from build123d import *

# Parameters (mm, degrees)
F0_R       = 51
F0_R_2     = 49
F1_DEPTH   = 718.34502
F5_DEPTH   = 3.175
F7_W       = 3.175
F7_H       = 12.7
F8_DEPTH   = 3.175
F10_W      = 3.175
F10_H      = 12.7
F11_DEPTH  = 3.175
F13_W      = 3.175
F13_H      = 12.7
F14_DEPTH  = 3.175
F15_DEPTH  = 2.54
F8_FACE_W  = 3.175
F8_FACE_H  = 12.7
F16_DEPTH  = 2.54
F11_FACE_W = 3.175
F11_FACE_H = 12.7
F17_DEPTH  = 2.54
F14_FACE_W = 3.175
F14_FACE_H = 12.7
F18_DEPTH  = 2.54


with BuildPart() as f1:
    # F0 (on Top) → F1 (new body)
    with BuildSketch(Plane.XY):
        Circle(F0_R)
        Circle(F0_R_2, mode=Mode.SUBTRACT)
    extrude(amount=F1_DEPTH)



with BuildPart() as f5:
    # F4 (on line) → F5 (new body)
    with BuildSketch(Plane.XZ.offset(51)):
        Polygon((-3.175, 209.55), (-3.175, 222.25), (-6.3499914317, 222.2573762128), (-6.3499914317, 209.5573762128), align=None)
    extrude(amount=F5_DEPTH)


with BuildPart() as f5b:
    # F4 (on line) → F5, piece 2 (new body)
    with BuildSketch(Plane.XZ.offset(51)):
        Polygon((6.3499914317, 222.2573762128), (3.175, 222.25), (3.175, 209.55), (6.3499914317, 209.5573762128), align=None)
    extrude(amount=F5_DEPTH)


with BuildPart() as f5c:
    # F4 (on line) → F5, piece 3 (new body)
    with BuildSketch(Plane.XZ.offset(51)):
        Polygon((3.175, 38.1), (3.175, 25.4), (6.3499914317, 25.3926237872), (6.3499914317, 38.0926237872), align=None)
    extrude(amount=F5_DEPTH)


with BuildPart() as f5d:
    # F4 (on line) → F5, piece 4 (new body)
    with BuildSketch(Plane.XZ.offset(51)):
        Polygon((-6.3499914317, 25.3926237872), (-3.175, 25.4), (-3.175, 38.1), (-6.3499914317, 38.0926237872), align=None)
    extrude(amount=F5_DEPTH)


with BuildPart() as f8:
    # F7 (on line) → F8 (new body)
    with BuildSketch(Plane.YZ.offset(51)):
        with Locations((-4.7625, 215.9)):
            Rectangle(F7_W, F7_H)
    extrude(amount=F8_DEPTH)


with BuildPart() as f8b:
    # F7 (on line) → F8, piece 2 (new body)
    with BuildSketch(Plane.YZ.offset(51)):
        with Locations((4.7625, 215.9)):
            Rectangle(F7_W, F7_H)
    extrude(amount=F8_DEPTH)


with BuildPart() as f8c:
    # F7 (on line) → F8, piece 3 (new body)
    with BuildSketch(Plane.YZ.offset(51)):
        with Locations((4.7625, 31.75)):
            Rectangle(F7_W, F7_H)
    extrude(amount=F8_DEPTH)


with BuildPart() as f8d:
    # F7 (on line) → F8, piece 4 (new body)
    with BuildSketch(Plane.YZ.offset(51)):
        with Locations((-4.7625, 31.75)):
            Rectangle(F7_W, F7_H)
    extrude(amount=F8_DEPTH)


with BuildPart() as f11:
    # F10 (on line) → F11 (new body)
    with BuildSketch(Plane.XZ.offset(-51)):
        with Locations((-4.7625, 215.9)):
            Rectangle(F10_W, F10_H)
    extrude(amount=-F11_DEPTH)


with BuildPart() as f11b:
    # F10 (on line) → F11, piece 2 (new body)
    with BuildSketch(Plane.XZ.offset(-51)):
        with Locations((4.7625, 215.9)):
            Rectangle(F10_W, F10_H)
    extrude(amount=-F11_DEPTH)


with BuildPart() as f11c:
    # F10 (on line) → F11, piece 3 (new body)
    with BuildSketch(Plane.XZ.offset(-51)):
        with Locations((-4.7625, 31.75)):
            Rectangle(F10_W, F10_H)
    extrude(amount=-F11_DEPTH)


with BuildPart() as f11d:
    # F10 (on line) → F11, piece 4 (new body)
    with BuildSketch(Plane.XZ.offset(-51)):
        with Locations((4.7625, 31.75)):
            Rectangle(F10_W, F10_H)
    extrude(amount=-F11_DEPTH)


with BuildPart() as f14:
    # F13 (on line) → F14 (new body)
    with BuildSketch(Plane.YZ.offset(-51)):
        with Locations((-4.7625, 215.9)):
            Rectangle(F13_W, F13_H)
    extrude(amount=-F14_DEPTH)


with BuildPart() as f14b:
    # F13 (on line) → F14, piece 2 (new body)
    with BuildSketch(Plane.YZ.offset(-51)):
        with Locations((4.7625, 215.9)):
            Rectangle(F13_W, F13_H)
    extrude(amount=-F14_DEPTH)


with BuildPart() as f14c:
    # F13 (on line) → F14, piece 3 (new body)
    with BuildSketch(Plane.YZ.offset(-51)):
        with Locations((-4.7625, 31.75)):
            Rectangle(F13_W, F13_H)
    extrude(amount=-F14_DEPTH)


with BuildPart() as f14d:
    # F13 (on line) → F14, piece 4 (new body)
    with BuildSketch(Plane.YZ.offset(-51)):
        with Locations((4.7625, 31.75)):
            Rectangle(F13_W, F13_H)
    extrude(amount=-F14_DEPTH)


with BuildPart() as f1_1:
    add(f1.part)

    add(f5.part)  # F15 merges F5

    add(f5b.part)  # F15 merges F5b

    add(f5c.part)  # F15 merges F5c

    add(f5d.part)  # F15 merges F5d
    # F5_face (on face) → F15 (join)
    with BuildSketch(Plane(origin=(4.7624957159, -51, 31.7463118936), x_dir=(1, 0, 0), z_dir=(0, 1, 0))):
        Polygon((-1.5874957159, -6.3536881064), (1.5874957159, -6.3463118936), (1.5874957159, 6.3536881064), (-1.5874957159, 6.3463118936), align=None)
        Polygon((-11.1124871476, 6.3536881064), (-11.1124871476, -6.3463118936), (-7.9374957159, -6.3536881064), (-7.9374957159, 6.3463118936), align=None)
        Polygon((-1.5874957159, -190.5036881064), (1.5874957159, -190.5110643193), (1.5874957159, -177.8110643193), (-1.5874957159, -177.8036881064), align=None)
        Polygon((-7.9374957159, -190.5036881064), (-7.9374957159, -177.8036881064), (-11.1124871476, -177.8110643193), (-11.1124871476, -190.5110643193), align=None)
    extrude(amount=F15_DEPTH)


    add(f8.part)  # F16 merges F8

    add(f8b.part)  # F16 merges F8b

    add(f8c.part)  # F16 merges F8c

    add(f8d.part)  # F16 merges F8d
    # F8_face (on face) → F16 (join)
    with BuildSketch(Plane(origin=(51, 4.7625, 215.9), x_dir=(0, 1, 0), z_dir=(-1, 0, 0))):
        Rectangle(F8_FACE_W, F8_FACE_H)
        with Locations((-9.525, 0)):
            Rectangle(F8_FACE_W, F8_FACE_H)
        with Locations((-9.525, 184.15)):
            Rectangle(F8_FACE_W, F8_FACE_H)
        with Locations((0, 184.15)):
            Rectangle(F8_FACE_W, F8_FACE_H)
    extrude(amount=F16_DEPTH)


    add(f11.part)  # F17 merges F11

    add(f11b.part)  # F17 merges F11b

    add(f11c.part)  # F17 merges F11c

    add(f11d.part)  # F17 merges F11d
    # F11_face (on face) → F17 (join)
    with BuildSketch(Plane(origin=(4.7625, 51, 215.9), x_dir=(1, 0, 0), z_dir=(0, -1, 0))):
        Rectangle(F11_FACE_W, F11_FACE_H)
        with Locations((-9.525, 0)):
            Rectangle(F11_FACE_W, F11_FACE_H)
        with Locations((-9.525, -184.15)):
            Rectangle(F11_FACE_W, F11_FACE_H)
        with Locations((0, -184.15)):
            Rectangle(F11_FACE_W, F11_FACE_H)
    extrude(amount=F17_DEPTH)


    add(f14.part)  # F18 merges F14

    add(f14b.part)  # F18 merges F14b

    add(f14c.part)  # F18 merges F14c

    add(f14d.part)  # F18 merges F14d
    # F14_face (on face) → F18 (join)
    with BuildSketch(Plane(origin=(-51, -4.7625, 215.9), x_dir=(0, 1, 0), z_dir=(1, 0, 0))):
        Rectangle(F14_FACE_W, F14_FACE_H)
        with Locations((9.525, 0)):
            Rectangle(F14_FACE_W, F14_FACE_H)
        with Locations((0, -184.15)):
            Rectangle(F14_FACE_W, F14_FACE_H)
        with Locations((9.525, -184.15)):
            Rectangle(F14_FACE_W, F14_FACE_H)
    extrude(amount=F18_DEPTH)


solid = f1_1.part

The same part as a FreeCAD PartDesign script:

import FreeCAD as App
import Part
import Sketcher

V = App.Vector
Q = App.Units.Quantity

doc = App.newDocument("Part")
params = doc.addObject("Spreadsheet::Sheet", "Params")
for row, (alias, value) in enumerate([
    ("pad1_length", "28.2813 in"),
    ("sketch2_height", "0.5 in"),
    ("sketch2_length", "0.125 in"),
    ("pad2_length", "0.125 in"),
    ("sketch3_height", "0.5 in"),
    ("sketch3_length", "0.125 in"),
    ("pad3_length", "0.125 in"),
    ("sketch4_height", "0.5 in"),
    ("sketch4_length", "0.125 in"),
    ("pad4_length", "0.125 in"),
    ("sketch5_height", "0.5 in"),
    ("sketch5_length", "0.125 in"),
    ("pad5_length", "0.125 in"),
    ("sketch6_height", "0.5 in"),
    ("sketch6_width", "0.125 in"),
    ("pad6_length", "0.125 in"),
    ("sketch7_height", "0.5 in"),
    ("sketch7_width", "0.125 in"),
    ("pad7_length", "0.125 in"),
    ("sketch8_height", "0.5 in"),
    ("sketch8_width", "0.125 in"),
    ("pad8_length", "0.125 in"),
    ("sketch9_height", "0.5 in"),
    ("sketch9_width", "0.125 in"),
    ("pad9_length", "0.125 in"),
    ("sketch10_height", "0.5 in"),
    ("sketch10_width", "0.125 in"),
    ("pad10_length", "0.125 in"),
    ("sketch11_height", "0.5 in"),
    ("sketch11_width", "0.125 in"),
    ("pad11_length", "0.125 in"),
    ("sketch12_height", "0.5 in"),
    ("sketch12_width", "0.125 in"),
    ("pad12_length", "0.125 in"),
    ("sketch13_height", "0.5 in"),
    ("sketch13_width", "0.125 in"),
    ("pad13_length", "0.125 in"),
    ("sketch14_height", "0.5 in"),
    ("sketch14_width", "0.125 in"),
    ("pad14_length", "0.125 in"),
    ("sketch15_height", "0.5 in"),
    ("sketch15_width", "0.125 in"),
    ("pad15_length", "0.125 in"),
    ("sketch16_height", "0.5 in"),
    ("sketch16_width", "0.125 in"),
    ("pad16_length", "0.125 in"),
    ("sketch17_height", "0.5 in"),
    ("sketch17_width", "0.125 in"),
    ("pad17_length", "0.125 in"),
    ("sketch18_height", "0.5 in"),
    ("sketch18_length", "0.125 in"),
    ("pad18_length", "0.1 in"),
    ("sketch19_height", "0.5 in"),
    ("sketch19_width", "0.125 in"),
    ("pad19_length", "0.1 in"),
    ("sketch20_height", "0.5 in"),
    ("sketch20_width", "0.125 in"),
    ("pad20_length", "0.1 in"),
    ("sketch21_height", "0.5 in"),
    ("sketch21_width", "0.125 in"),
    ("pad21_length", "0.1 in"),
], start=1):
    params.set(f"A{row}", alias)
    params.set(f"B{row}", "=" + value)
    params.setAlias(f"B{row}", alias)

body = doc.addObject("PartDesign::Body", "Body")

sketch1 = doc.addObject("Sketcher::SketchObject", "Sketch")
body.addObject(sketch1)
sketch1.AttachmentSupport = (doc.XY_Plane, [""])
sketch1.MapMode = "FlatFace"
sketch1.addGeometry([
    Part.Circle(V(0, 0, 0), V(0, 0, 1), 51),
    Part.Circle(V(0, 0, 0), V(0, 0, 1), 49),
], False)
sketch1.addConstraint([
    Sketcher.Constraint("Coincident", 0, 3, -1, 1),
    Sketcher.Constraint("Coincident", 1, 3, -1, 1),
    Sketcher.Constraint("Diameter", 0, 102.0),
    Sketcher.Constraint("Diameter", 1, 98.0),
])
pad1 = doc.addObject("PartDesign::Pad", "Pad")
body.addObject(pad1)
pad1.Profile = sketch1
pad1.setExpression("Length", "Params.pad1_length")
body2 = doc.addObject("PartDesign::Body", "Body001")

sketch2 = doc.addObject("Sketcher::SketchObject", "Sketch001")
body2.addObject(sketch2)
sketch2.AttachmentSupport = (doc.getObject("XZ_Plane001"), [""])
sketch2.MapMode = "FlatFace"
sketch2.AttachmentOffset = App.Placement(V(0, 0, 51), App.Rotation())
sketch2.addGeometry([
    Part.LineSegment(V(-3.175, 209.55, 0), V(-3.175, 222.25, 0)),
    Part.LineSegment(V(-3.175, 222.25, 0), V(-6.349991, 222.257376, 0)),
    Part.LineSegment(V(-6.349991, 222.257376, 0), V(-6.349991, 209.557376, 0)),
    Part.LineSegment(V(-6.349991, 209.557376, 0), V(-3.175, 209.55, 0)),
], False)
sketch2.addConstraint([
    Sketcher.Constraint("Coincident", 0, 2, 1, 1),
    Sketcher.Constraint("Coincident", 1, 2, 2, 1),
    Sketcher.Constraint("Coincident", 2, 2, 3, 1),
    Sketcher.Constraint("Coincident", 3, 2, 0, 1),
    Sketcher.Constraint("Vertical", 0),
    Sketcher.Constraint("Vertical", 2),
    Sketcher.Constraint("Parallel", 1, 3),
    Sketcher.Constraint("DistanceY", 0, 1, 0, 2, Q("0.5 in")),
    Sketcher.Constraint("DistanceY", -1, 1, 0, 2, Q("8.75 in")),
    Sketcher.Constraint("Distance", 1, Q("0.125 in")),
    Sketcher.Constraint("DistanceX", 0, 2, -1, 1, Q("0.125 in")),
    Sketcher.Constraint("DistanceY", -1, 1, 1, 2, 222.257376),
])
sketch2.setExpression("Constraints[7]", "Params.sketch2_height")
sketch2.setExpression("Constraints[9]", "Params.sketch2_length")
pad2 = doc.addObject("PartDesign::Pad", "Pad001")
body2.addObject(pad2)
pad2.Profile = sketch2
pad2.setExpression("Length", "Params.pad2_length")
body3 = doc.addObject("PartDesign::Body", "Body002")

sketch3 = doc.addObject("Sketcher::SketchObject", "Sketch002")
body3.addObject(sketch3)
sketch3.AttachmentSupport = (doc.getObject("XZ_Plane002"), [""])
sketch3.MapMode = "FlatFace"
sketch3.AttachmentOffset = App.Placement(V(0, 0, 51), App.Rotation())
sketch3.addGeometry([
    Part.LineSegment(V(6.349991, 222.257376, 0), V(3.175, 222.25, 0)),
    Part.LineSegment(V(3.175, 222.25, 0), V(3.175, 209.55, 0)),
    Part.LineSegment(V(3.175, 209.55, 0), V(6.349991, 209.557376, 0)),
    Part.LineSegment(V(6.349991, 209.557376, 0), V(6.349991, 222.257376, 0)),
], False)
sketch3.addConstraint([
    Sketcher.Constraint("Coincident", 0, 2, 1, 1),
    Sketcher.Constraint("Coincident", 1, 2, 2, 1),
    Sketcher.Constraint("Coincident", 2, 2, 3, 1),
    Sketcher.Constraint("Coincident", 3, 2, 0, 1),
    Sketcher.Constraint("Vertical", 1),
    Sketcher.Constraint("Vertical", 3),
    Sketcher.Constraint("Parallel", 0, 2),
    Sketcher.Constraint("DistanceY", 1, 2, 1, 1, Q("0.5 in")),
    Sketcher.Constraint("DistanceY", -1, 1, 0, 2, Q("8.75 in")),
    Sketcher.Constraint("Distance", 0, Q("0.125 in")),
    Sketcher.Constraint("DistanceX", -1, 1, 0, 2, Q("0.125 in")),
    Sketcher.Constraint("DistanceY", -1, 1, 2, 2, 209.557376),
])
sketch3.setExpression("Constraints[7]", "Params.sketch3_height")
sketch3.setExpression("Constraints[9]", "Params.sketch3_length")
pad3 = doc.addObject("PartDesign::Pad", "Pad002")
body3.addObject(pad3)
pad3.Profile = sketch3
pad3.setExpression("Length", "Params.pad3_length")
body4 = doc.addObject("PartDesign::Body", "Body003")

sketch4 = doc.addObject("Sketcher::SketchObject", "Sketch003")
body4.addObject(sketch4)
sketch4.AttachmentSupport = (doc.getObject("XZ_Plane003"), [""])
sketch4.MapMode = "FlatFace"
sketch4.AttachmentOffset = App.Placement(V(0, 0, 51), App.Rotation())
sketch4.addGeometry([
    Part.LineSegment(V(3.175, 38.1, 0), V(3.175, 25.4, 0)),
    Part.LineSegment(V(3.175, 25.4, 0), V(6.349991, 25.392624, 0)),
    Part.LineSegment(V(6.349991, 25.392624, 0), V(6.349991, 38.092624, 0)),
    Part.LineSegment(V(6.349991, 38.092624, 0), V(3.175, 38.1, 0)),
], False)
sketch4.addConstraint([
    Sketcher.Constraint("Coincident", 0, 2, 1, 1),
    Sketcher.Constraint("Coincident", 1, 2, 2, 1),
    Sketcher.Constraint("Coincident", 2, 2, 3, 1),
    Sketcher.Constraint("Coincident", 3, 2, 0, 1),
    Sketcher.Constraint("Vertical", 0),
    Sketcher.Constraint("Vertical", 2),
    Sketcher.Constraint("Parallel", 1, 3),
    Sketcher.Constraint("DistanceY", 0, 2, 0, 1, Q("0.5 in")),
    Sketcher.Constraint("DistanceY", -1, 1, 0, 2, Q("1 in")),
    Sketcher.Constraint("Distance", 1, Q("0.125 in")),
    Sketcher.Constraint("DistanceX", -1, 1, 0, 2, Q("0.125 in")),
    Sketcher.Constraint("DistanceY", -1, 1, 1, 2, 25.392624),
])
sketch4.setExpression("Constraints[7]", "Params.sketch4_height")
sketch4.setExpression("Constraints[9]", "Params.sketch4_length")
pad4 = doc.addObject("PartDesign::Pad", "Pad003")
body4.addObject(pad4)
pad4.Profile = sketch4
pad4.setExpression("Length", "Params.pad4_length")
body5 = doc.addObject("PartDesign::Body", "Body004")

sketch5 = doc.addObject("Sketcher::SketchObject", "Sketch004")
body5.addObject(sketch5)
sketch5.AttachmentSupport = (doc.getObject("XZ_Plane004"), [""])
sketch5.MapMode = "FlatFace"
sketch5.AttachmentOffset = App.Placement(V(0, 0, 51), App.Rotation())
sketch5.addGeometry([
    Part.LineSegment(V(-6.349991, 25.392624, 0), V(-3.175, 25.4, 0)),
    Part.LineSegment(V(-3.175, 25.4, 0), V(-3.175, 38.1, 0)),
    Part.LineSegment(V(-3.175, 38.1, 0), V(-6.349991, 38.092624, 0)),
    Part.LineSegment(V(-6.349991, 38.092624, 0), V(-6.349991, 25.392624, 0)),
], False)
sketch5.addConstraint([
    Sketcher.Constraint("Coincident", 0, 2, 1, 1),
    Sketcher.Constraint("Coincident", 1, 2, 2, 1),
    Sketcher.Constraint("Coincident", 2, 2, 3, 1),
    Sketcher.Constraint("Coincident", 3, 2, 0, 1),
    Sketcher.Constraint("Vertical", 1),
    Sketcher.Constraint("Vertical", 3),
    Sketcher.Constraint("Parallel", 0, 2),
    Sketcher.Constraint("DistanceY", 1, 1, 1, 2, Q("0.5 in")),
    Sketcher.Constraint("DistanceY", -1, 1, 0, 2, Q("1 in")),
    Sketcher.Constraint("Distance", 0, Q("0.125 in")),
    Sketcher.Constraint("DistanceX", 0, 2, -1, 1, Q("0.125 in")),
    Sketcher.Constraint("DistanceY", -1, 1, 2, 2, 38.092624),
])
sketch5.setExpression("Constraints[7]", "Params.sketch5_height")
sketch5.setExpression("Constraints[9]", "Params.sketch5_length")
pad5 = doc.addObject("PartDesign::Pad", "Pad004")
body5.addObject(pad5)
pad5.Profile = sketch5
pad5.setExpression("Length", "Params.pad5_length")
body6 = doc.addObject("PartDesign::Body", "Body005")

sketch6 = doc.addObject("Sketcher::SketchObject", "Sketch005")
body6.addObject(sketch6)
sketch6.AttachmentSupport = (doc.getObject("YZ_Plane005"), [""])
sketch6.MapMode = "FlatFace"
sketch6.AttachmentOffset = App.Placement(V(0, 0, 51), App.Rotation())
sketch6.addGeometry([
    Part.LineSegment(V(-6.35, 222.25, 0), V(-6.35, 209.55, 0)),
    Part.LineSegment(V(-6.35, 209.55, 0), V(-3.175, 209.55, 0)),
    Part.LineSegment(V(-3.175, 209.55, 0), V(-3.175, 222.25, 0)),
    Part.LineSegment(V(-3.175, 222.25, 0), V(-6.35, 222.25, 0)),
], False)
sketch6.addConstraint([
    Sketcher.Constraint("Coincident", 0, 2, 1, 1),
    Sketcher.Constraint("Coincident", 1, 2, 2, 1),
    Sketcher.Constraint("Coincident", 2, 2, 3, 1),
    Sketcher.Constraint("Coincident", 3, 2, 0, 1),
    Sketcher.Constraint("Vertical", 0),
    Sketcher.Constraint("Horizontal", 1),
    Sketcher.Constraint("Vertical", 2),
    Sketcher.Constraint("Horizontal", 3),
    Sketcher.Constraint("DistanceY", 0, 2, 0, 1, Q("0.5 in")),
    Sketcher.Constraint("DistanceX", 1, 1, 1, 2, Q("0.125 in")),
    Sketcher.Constraint("DistanceX", 0, 2, -1, 1, Q("0.25 in")),
    Sketcher.Constraint("DistanceY", -1, 1, 0, 2, Q("8.25 in")),
])
sketch6.setExpression("Constraints[8]", "Params.sketch6_height")
sketch6.setExpression("Constraints[9]", "Params.sketch6_width")
pad6 = doc.addObject("PartDesign::Pad", "Pad005")
body6.addObject(pad6)
pad6.Profile = sketch6
pad6.setExpression("Length", "Params.pad6_length")
body7 = doc.addObject("PartDesign::Body", "Body006")

sketch7 = doc.addObject("Sketcher::SketchObject", "Sketch006")
body7.addObject(sketch7)
sketch7.AttachmentSupport = (doc.getObject("YZ_Plane006"), [""])
sketch7.MapMode = "FlatFace"
sketch7.AttachmentOffset = App.Placement(V(0, 0, 51), App.Rotation())
sketch7.addGeometry([
    Part.LineSegment(V(3.175, 222.25, 0), V(3.175, 209.55, 0)),
    Part.LineSegment(V(3.175, 209.55, 0), V(6.35, 209.55, 0)),
    Part.LineSegment(V(6.35, 209.55, 0), V(6.35, 222.25, 0)),
    Part.LineSegment(V(6.35, 222.25, 0), V(3.175, 222.25, 0)),
], False)
sketch7.addConstraint([
    Sketcher.Constraint("Coincident", 0, 2, 1, 1),
    Sketcher.Constraint("Coincident", 1, 2, 2, 1),
    Sketcher.Constraint("Coincident", 2, 2, 3, 1),
    Sketcher.Constraint("Coincident", 3, 2, 0, 1),
    Sketcher.Constraint("Vertical", 0),
    Sketcher.Constraint("Horizontal", 1),
    Sketcher.Constraint("Vertical", 2),
    Sketcher.Constraint("Horizontal", 3),
    Sketcher.Constraint("DistanceY", 0, 2, 0, 1, Q("0.5 in")),
    Sketcher.Constraint("DistanceX", 1, 1, 1, 2, Q("0.125 in")),
    Sketcher.Constraint("DistanceY", -1, 1, 0, 2, Q("8.25 in")),
    Sketcher.Constraint("DistanceX", -1, 1, 1, 2, Q("0.25 in")),
])
sketch7.setExpression("Constraints[8]", "Params.sketch7_height")
sketch7.setExpression("Constraints[9]", "Params.sketch7_width")
pad7 = doc.addObject("PartDesign::Pad", "Pad006")
body7.addObject(pad7)
pad7.Profile = sketch7
pad7.setExpression("Length", "Params.pad7_length")
body8 = doc.addObject("PartDesign::Body", "Body007")

sketch8 = doc.addObject("Sketcher::SketchObject", "Sketch007")
body8.addObject(sketch8)
sketch8.AttachmentSupport = (doc.getObject("YZ_Plane007"), [""])
sketch8.MapMode = "FlatFace"
sketch8.AttachmentOffset = App.Placement(V(0, 0, 51), App.Rotation())
sketch8.addGeometry([
    Part.LineSegment(V(3.175, 38.1, 0), V(3.175, 25.4, 0)),
    Part.LineSegment(V(3.175, 25.4, 0), V(6.35, 25.4, 0)),
    Part.LineSegment(V(6.35, 25.4, 0), V(6.35, 38.1, 0)),
    Part.LineSegment(V(6.35, 38.1, 0), V(3.175, 38.1, 0)),
], False)
sketch8.addConstraint([
    Sketcher.Constraint("Coincident", 0, 2, 1, 1),
    Sketcher.Constraint("Coincident", 1, 2, 2, 1),
    Sketcher.Constraint("Coincident", 2, 2, 3, 1),
    Sketcher.Constraint("Coincident", 3, 2, 0, 1),
    Sketcher.Constraint("Vertical", 0),
    Sketcher.Constraint("Horizontal", 1),
    Sketcher.Constraint("Vertical", 2),
    Sketcher.Constraint("Horizontal", 3),
    Sketcher.Constraint("DistanceY", 0, 2, 0, 1, Q("0.5 in")),
    Sketcher.Constraint("DistanceY", -1, 1, 0, 2, Q("1 in")),
    Sketcher.Constraint("DistanceX", 1, 1, 1, 2, Q("0.125 in")),
    Sketcher.Constraint("DistanceX", -1, 1, 1, 2, Q("0.25 in")),
])
sketch8.setExpression("Constraints[8]", "Params.sketch8_height")
sketch8.setExpression("Constraints[10]", "Params.sketch8_width")
pad8 = doc.addObject("PartDesign::Pad", "Pad007")
body8.addObject(pad8)
pad8.Profile = sketch8
pad8.setExpression("Length", "Params.pad8_length")
body9 = doc.addObject("PartDesign::Body", "Body008")

sketch9 = doc.addObject("Sketcher::SketchObject", "Sketch008")
body9.addObject(sketch9)
sketch9.AttachmentSupport = (doc.getObject("YZ_Plane008"), [""])
sketch9.MapMode = "FlatFace"
sketch9.AttachmentOffset = App.Placement(V(0, 0, 51), App.Rotation())
sketch9.addGeometry([
    Part.LineSegment(V(-6.35, 38.1, 0), V(-6.35, 25.4, 0)),
    Part.LineSegment(V(-6.35, 25.4, 0), V(-3.175, 25.4, 0)),
    Part.LineSegment(V(-3.175, 25.4, 0), V(-3.175, 38.1, 0)),
    Part.LineSegment(V(-3.175, 38.1, 0), V(-6.35, 38.1, 0)),
], False)
sketch9.addConstraint([
    Sketcher.Constraint("Coincident", 0, 2, 1, 1),
    Sketcher.Constraint("Coincident", 1, 2, 2, 1),
    Sketcher.Constraint("Coincident", 2, 2, 3, 1),
    Sketcher.Constraint("Coincident", 3, 2, 0, 1),
    Sketcher.Constraint("Vertical", 0),
    Sketcher.Constraint("Horizontal", 1),
    Sketcher.Constraint("Vertical", 2),
    Sketcher.Constraint("Horizontal", 3),
    Sketcher.Constraint("DistanceY", 0, 2, 0, 1, Q("0.5 in")),
    Sketcher.Constraint("DistanceY", -1, 1, 0, 2, Q("1 in")),
    Sketcher.Constraint("DistanceX", 1, 1, 1, 2, Q("0.125 in")),
    Sketcher.Constraint("DistanceX", 0, 2, -1, 1, Q("0.25 in")),
])
sketch9.setExpression("Constraints[8]", "Params.sketch9_height")
sketch9.setExpression("Constraints[10]", "Params.sketch9_width")
pad9 = doc.addObject("PartDesign::Pad", "Pad008")
body9.addObject(pad9)
pad9.Profile = sketch9
pad9.setExpression("Length", "Params.pad9_length")
body10 = doc.addObject("PartDesign::Body", "Body009")

sketch10 = doc.addObject("Sketcher::SketchObject", "Sketch009")
body10.addObject(sketch10)
sketch10.AttachmentSupport = (doc.getObject("XZ_Plane009"), [""])
sketch10.MapMode = "FlatFace"
sketch10.AttachmentOffset = App.Placement(V(0, 0, -51), App.Rotation())
sketch10.addGeometry([
    Part.LineSegment(V(-6.35, 222.25, 0), V(-6.35, 209.55, 0)),
    Part.LineSegment(V(-6.35, 209.55, 0), V(-3.175, 209.55, 0)),
    Part.LineSegment(V(-3.175, 209.55, 0), V(-3.175, 222.25, 0)),
    Part.LineSegment(V(-3.175, 222.25, 0), V(-6.35, 222.25, 0)),
], False)
sketch10.addConstraint([
    Sketcher.Constraint("Coincident", 0, 2, 1, 1),
    Sketcher.Constraint("Coincident", 1, 2, 2, 1),
    Sketcher.Constraint("Coincident", 2, 2, 3, 1),
    Sketcher.Constraint("Coincident", 3, 2, 0, 1),
    Sketcher.Constraint("Vertical", 0),
    Sketcher.Constraint("Horizontal", 1),
    Sketcher.Constraint("Vertical", 2),
    Sketcher.Constraint("Horizontal", 3),
    Sketcher.Constraint("DistanceY", 0, 2, 0, 1, Q("0.5 in")),
    Sketcher.Constraint("DistanceX", 1, 1, 1, 2, Q("0.125 in")),
    Sketcher.Constraint("DistanceX", 0, 2, -1, 1, Q("0.25 in")),
    Sketcher.Constraint("DistanceY", -1, 1, 0, 2, Q("8.25 in")),
])
sketch10.setExpression("Constraints[8]", "Params.sketch10_height")
sketch10.setExpression("Constraints[9]", "Params.sketch10_width")
pad10 = doc.addObject("PartDesign::Pad", "Pad009")
body10.addObject(pad10)
pad10.Profile = sketch10
pad10.setExpression("Length", "Params.pad10_length")
pad10.Reversed = True
body11 = doc.addObject("PartDesign::Body", "Body010")

sketch11 = doc.addObject("Sketcher::SketchObject", "Sketch010")
body11.addObject(sketch11)
sketch11.AttachmentSupport = (doc.getObject("XZ_Plane010"), [""])
sketch11.MapMode = "FlatFace"
sketch11.AttachmentOffset = App.Placement(V(0, 0, -51), App.Rotation())
sketch11.addGeometry([
    Part.LineSegment(V(3.175, 222.25, 0), V(3.175, 209.55, 0)),
    Part.LineSegment(V(3.175, 209.55, 0), V(6.35, 209.55, 0)),
    Part.LineSegment(V(6.35, 209.55, 0), V(6.35, 222.25, 0)),
    Part.LineSegment(V(6.35, 222.25, 0), V(3.175, 222.25, 0)),
], False)
sketch11.addConstraint([
    Sketcher.Constraint("Coincident", 0, 2, 1, 1),
    Sketcher.Constraint("Coincident", 1, 2, 2, 1),
    Sketcher.Constraint("Coincident", 2, 2, 3, 1),
    Sketcher.Constraint("Coincident", 3, 2, 0, 1),
    Sketcher.Constraint("Vertical", 0),
    Sketcher.Constraint("Horizontal", 1),
    Sketcher.Constraint("Vertical", 2),
    Sketcher.Constraint("Horizontal", 3),
    Sketcher.Constraint("DistanceY", 0, 2, 0, 1, Q("0.5 in")),
    Sketcher.Constraint("DistanceX", 1, 1, 1, 2, Q("0.125 in")),
    Sketcher.Constraint("DistanceY", -1, 1, 0, 2, Q("8.25 in")),
    Sketcher.Constraint("DistanceX", -1, 1, 1, 2, Q("0.25 in")),
])
sketch11.setExpression("Constraints[8]", "Params.sketch11_height")
sketch11.setExpression("Constraints[9]", "Params.sketch11_width")
pad11 = doc.addObject("PartDesign::Pad", "Pad010")
body11.addObject(pad11)
pad11.Profile = sketch11
pad11.setExpression("Length", "Params.pad11_length")
pad11.Reversed = True
body12 = doc.addObject("PartDesign::Body", "Body011")

sketch12 = doc.addObject("Sketcher::SketchObject", "Sketch011")
body12.addObject(sketch12)
sketch12.AttachmentSupport = (doc.getObject("XZ_Plane011"), [""])
sketch12.MapMode = "FlatFace"
sketch12.AttachmentOffset = App.Placement(V(0, 0, -51), App.Rotation())
sketch12.addGeometry([
    Part.LineSegment(V(-6.35, 38.1, 0), V(-6.35, 25.4, 0)),
    Part.LineSegment(V(-6.35, 25.4, 0), V(-3.175, 25.4, 0)),
    Part.LineSegment(V(-3.175, 25.4, 0), V(-3.175, 38.1, 0)),
    Part.LineSegment(V(-3.175, 38.1, 0), V(-6.35, 38.1, 0)),
], False)
sketch12.addConstraint([
    Sketcher.Constraint("Coincident", 0, 2, 1, 1),
    Sketcher.Constraint("Coincident", 1, 2, 2, 1),
    Sketcher.Constraint("Coincident", 2, 2, 3, 1),
    Sketcher.Constraint("Coincident", 3, 2, 0, 1),
    Sketcher.Constraint("Vertical", 0),
    Sketcher.Constraint("Horizontal", 1),
    Sketcher.Constraint("Vertical", 2),
    Sketcher.Constraint("Horizontal", 3),
    Sketcher.Constraint("DistanceY", 0, 2, 0, 1, Q("0.5 in")),
    Sketcher.Constraint("DistanceY", -1, 1, 0, 2, Q("1 in")),
    Sketcher.Constraint("DistanceX", 1, 1, 1, 2, Q("0.125 in")),
    Sketcher.Constraint("DistanceX", 0, 2, -1, 1, Q("0.25 in")),
])
sketch12.setExpression("Constraints[8]", "Params.sketch12_height")
sketch12.setExpression("Constraints[10]", "Params.sketch12_width")
pad12 = doc.addObject("PartDesign::Pad", "Pad011")
body12.addObject(pad12)
pad12.Profile = sketch12
pad12.setExpression("Length", "Params.pad12_length")
pad12.Reversed = True
body13 = doc.addObject("PartDesign::Body", "Body012")

sketch13 = doc.addObject("Sketcher::SketchObject", "Sketch012")
body13.addObject(sketch13)
sketch13.AttachmentSupport = (doc.getObject("XZ_Plane012"), [""])
sketch13.MapMode = "FlatFace"
sketch13.AttachmentOffset = App.Placement(V(0, 0, -51), App.Rotation())
sketch13.addGeometry([
    Part.LineSegment(V(3.175, 38.1, 0), V(3.175, 25.4, 0)),
    Part.LineSegment(V(3.175, 25.4, 0), V(6.35, 25.4, 0)),
    Part.LineSegment(V(6.35, 25.4, 0), V(6.35, 38.1, 0)),
    Part.LineSegment(V(6.35, 38.1, 0), V(3.175, 38.1, 0)),
], False)
sketch13.addConstraint([
    Sketcher.Constraint("Coincident", 0, 2, 1, 1),
    Sketcher.Constraint("Coincident", 1, 2, 2, 1),
    Sketcher.Constraint("Coincident", 2, 2, 3, 1),
    Sketcher.Constraint("Coincident", 3, 2, 0, 1),
    Sketcher.Constraint("Vertical", 0),
    Sketcher.Constraint("Horizontal", 1),
    Sketcher.Constraint("Vertical", 2),
    Sketcher.Constraint("Horizontal", 3),
    Sketcher.Constraint("DistanceY", 0, 2, 0, 1, Q("0.5 in")),
    Sketcher.Constraint("DistanceY", -1, 1, 0, 2, Q("1 in")),
    Sketcher.Constraint("DistanceX", 1, 1, 1, 2, Q("0.125 in")),
    Sketcher.Constraint("DistanceX", -1, 1, 1, 2, Q("0.25 in")),
])
sketch13.setExpression("Constraints[8]", "Params.sketch13_height")
sketch13.setExpression("Constraints[10]", "Params.sketch13_width")
pad13 = doc.addObject("PartDesign::Pad", "Pad012")
body13.addObject(pad13)
pad13.Profile = sketch13
pad13.setExpression("Length", "Params.pad13_length")
pad13.Reversed = True
body14 = doc.addObject("PartDesign::Body", "Body013")

sketch14 = doc.addObject("Sketcher::SketchObject", "Sketch013")
body14.addObject(sketch14)
sketch14.AttachmentSupport = (doc.getObject("YZ_Plane013"), [""])
sketch14.MapMode = "FlatFace"
sketch14.AttachmentOffset = App.Placement(V(0, 0, -51), App.Rotation())
sketch14.addGeometry([
    Part.LineSegment(V(-6.35, 222.25, 0), V(-6.35, 209.55, 0)),
    Part.LineSegment(V(-6.35, 209.55, 0), V(-3.175, 209.55, 0)),
    Part.LineSegment(V(-3.175, 209.55, 0), V(-3.175, 222.25, 0)),
    Part.LineSegment(V(-3.175, 222.25, 0), V(-6.35, 222.25, 0)),
], False)
sketch14.addConstraint([
    Sketcher.Constraint("Coincident", 0, 2, 1, 1),
    Sketcher.Constraint("Coincident", 1, 2, 2, 1),
    Sketcher.Constraint("Coincident", 2, 2, 3, 1),
    Sketcher.Constraint("Coincident", 3, 2, 0, 1),
    Sketcher.Constraint("Vertical", 0),
    Sketcher.Constraint("Horizontal", 1),
    Sketcher.Constraint("Vertical", 2),
    Sketcher.Constraint("Horizontal", 3),
    Sketcher.Constraint("DistanceY", 0, 2, 0, 1, Q("0.5 in")),
    Sketcher.Constraint("DistanceX", 1, 1, 1, 2, Q("0.125 in")),
    Sketcher.Constraint("DistanceX", 0, 2, -1, 1, Q("0.25 in")),
    Sketcher.Constraint("DistanceY", -1, 1, 0, 2, Q("8.25 in")),
])
sketch14.setExpression("Constraints[8]", "Params.sketch14_height")
sketch14.setExpression("Constraints[9]", "Params.sketch14_width")
pad14 = doc.addObject("PartDesign::Pad", "Pad013")
body14.addObject(pad14)
pad14.Profile = sketch14
pad14.setExpression("Length", "Params.pad14_length")
pad14.Reversed = True
body15 = doc.addObject("PartDesign::Body", "Body014")

sketch15 = doc.addObject("Sketcher::SketchObject", "Sketch014")
body15.addObject(sketch15)
sketch15.AttachmentSupport = (doc.getObject("YZ_Plane014"), [""])
sketch15.MapMode = "FlatFace"
sketch15.AttachmentOffset = App.Placement(V(0, 0, -51), App.Rotation())
sketch15.addGeometry([
    Part.LineSegment(V(3.175, 222.25, 0), V(3.175, 209.55, 0)),
    Part.LineSegment(V(3.175, 209.55, 0), V(6.35, 209.55, 0)),
    Part.LineSegment(V(6.35, 209.55, 0), V(6.35, 222.25, 0)),
    Part.LineSegment(V(6.35, 222.25, 0), V(3.175, 222.25, 0)),
], False)
sketch15.addConstraint([
    Sketcher.Constraint("Coincident", 0, 2, 1, 1),
    Sketcher.Constraint("Coincident", 1, 2, 2, 1),
    Sketcher.Constraint("Coincident", 2, 2, 3, 1),
    Sketcher.Constraint("Coincident", 3, 2, 0, 1),
    Sketcher.Constraint("Vertical", 0),
    Sketcher.Constraint("Horizontal", 1),
    Sketcher.Constraint("Vertical", 2),
    Sketcher.Constraint("Horizontal", 3),
    Sketcher.Constraint("DistanceY", 0, 2, 0, 1, Q("0.5 in")),
    Sketcher.Constraint("DistanceX", 1, 1, 1, 2, Q("0.125 in")),
    Sketcher.Constraint("DistanceY", -1, 1, 0, 2, Q("8.25 in")),
    Sketcher.Constraint("DistanceX", -1, 1, 1, 2, Q("0.25 in")),
])
sketch15.setExpression("Constraints[8]", "Params.sketch15_height")
sketch15.setExpression("Constraints[9]", "Params.sketch15_width")
pad15 = doc.addObject("PartDesign::Pad", "Pad014")
body15.addObject(pad15)
pad15.Profile = sketch15
pad15.setExpression("Length", "Params.pad15_length")
pad15.Reversed = True
body16 = doc.addObject("PartDesign::Body", "Body015")

sketch16 = doc.addObject("Sketcher::SketchObject", "Sketch015")
body16.addObject(sketch16)
sketch16.AttachmentSupport = (doc.getObject("YZ_Plane015"), [""])
sketch16.MapMode = "FlatFace"
sketch16.AttachmentOffset = App.Placement(V(0, 0, -51), App.Rotation())
sketch16.addGeometry([
    Part.LineSegment(V(-6.35, 38.1, 0), V(-6.35, 25.4, 0)),
    Part.LineSegment(V(-6.35, 25.4, 0), V(-3.175, 25.4, 0)),
    Part.LineSegment(V(-3.175, 25.4, 0), V(-3.175, 38.1, 0)),
    Part.LineSegment(V(-3.175, 38.1, 0), V(-6.35, 38.1, 0)),
], False)
sketch16.addConstraint([
    Sketcher.Constraint("Coincident", 0, 2, 1, 1),
    Sketcher.Constraint("Coincident", 1, 2, 2, 1),
    Sketcher.Constraint("Coincident", 2, 2, 3, 1),
    Sketcher.Constraint("Coincident", 3, 2, 0, 1),
    Sketcher.Constraint("Vertical", 0),
    Sketcher.Constraint("Horizontal", 1),
    Sketcher.Constraint("Vertical", 2),
    Sketcher.Constraint("Horizontal", 3),
    Sketcher.Constraint("DistanceY", 0, 2, 0, 1, Q("0.5 in")),
    Sketcher.Constraint("DistanceY", -1, 1, 0, 2, Q("1 in")),
    Sketcher.Constraint("DistanceX", 1, 1, 1, 2, Q("0.125 in")),
    Sketcher.Constraint("DistanceX", 0, 2, -1, 1, Q("0.25 in")),
])
sketch16.setExpression("Constraints[8]", "Params.sketch16_height")
sketch16.setExpression("Constraints[10]", "Params.sketch16_width")
pad16 = doc.addObject("PartDesign::Pad", "Pad015")
body16.addObject(pad16)
pad16.Profile = sketch16
pad16.setExpression("Length", "Params.pad16_length")
pad16.Reversed = True
body17 = doc.addObject("PartDesign::Body", "Body016")

sketch17 = doc.addObject("Sketcher::SketchObject", "Sketch016")
body17.addObject(sketch17)
sketch17.AttachmentSupport = (doc.getObject("YZ_Plane016"), [""])
sketch17.MapMode = "FlatFace"
sketch17.AttachmentOffset = App.Placement(V(0, 0, -51), App.Rotation())
sketch17.addGeometry([
    Part.LineSegment(V(3.175, 38.1, 0), V(3.175, 25.4, 0)),
    Part.LineSegment(V(3.175, 25.4, 0), V(6.35, 25.4, 0)),
    Part.LineSegment(V(6.35, 25.4, 0), V(6.35, 38.1, 0)),
    Part.LineSegment(V(6.35, 38.1, 0), V(3.175, 38.1, 0)),
], False)
sketch17.addConstraint([
    Sketcher.Constraint("Coincident", 0, 2, 1, 1),
    Sketcher.Constraint("Coincident", 1, 2, 2, 1),
    Sketcher.Constraint("Coincident", 2, 2, 3, 1),
    Sketcher.Constraint("Coincident", 3, 2, 0, 1),
    Sketcher.Constraint("Vertical", 0),
    Sketcher.Constraint("Horizontal", 1),
    Sketcher.Constraint("Vertical", 2),
    Sketcher.Constraint("Horizontal", 3),
    Sketcher.Constraint("DistanceY", 0, 2, 0, 1, Q("0.5 in")),
    Sketcher.Constraint("DistanceY", -1, 1, 0, 2, Q("1 in")),
    Sketcher.Constraint("DistanceX", 1, 1, 1, 2, Q("0.125 in")),
    Sketcher.Constraint("DistanceX", -1, 1, 1, 2, Q("0.25 in")),
])
sketch17.setExpression("Constraints[8]", "Params.sketch17_height")
sketch17.setExpression("Constraints[10]", "Params.sketch17_width")
pad17 = doc.addObject("PartDesign::Pad", "Pad016")
body17.addObject(pad17)
pad17.Profile = sketch17
pad17.setExpression("Length", "Params.pad17_length")
pad17.Reversed = True
body.AllowCompound = True
doc.recompute()

boolean = doc.addObject("PartDesign::Boolean", "Boolean")
body.addObject(boolean)
boolean.Type = "Fuse"
boolean.addObjects([body2])
doc.recompute()

boolean2 = doc.addObject("PartDesign::Boolean", "Boolean001")
body.addObject(boolean2)
boolean2.Type = "Fuse"
boolean2.addObjects([body3])
doc.recompute()

boolean3 = doc.addObject("PartDesign::Boolean", "Boolean002")
body.addObject(boolean3)
boolean3.Type = "Fuse"
boolean3.addObjects([body4])
doc.recompute()

boolean4 = doc.addObject("PartDesign::Boolean", "Boolean003")
body.addObject(boolean4)
boolean4.Type = "Fuse"
boolean4.addObjects([body5])

sketch18 = doc.addObject("Sketcher::SketchObject", "Sketch017")
body.addObject(sketch18)
sketch18.AttachmentSupport = (doc.XZ_Plane, [""])
sketch18.MapMode = "FlatFace"
sketch18.AttachmentOffset = App.Placement(V(0, 0, 51), App.Rotation())
sketch18.addGeometry([
    Part.LineSegment(V(3.175, 38.1, 0), V(6.349991, 38.092624, 0)),
    Part.LineSegment(V(6.349991, 38.092624, 0), V(6.349991, 25.392624, 0)),
    Part.LineSegment(V(6.349991, 25.392624, 0), V(3.175, 25.4, 0)),
    Part.LineSegment(V(3.175, 25.4, 0), V(3.175, 38.1, 0)),
    Part.LineSegment(V(-6.349991, 25.392624, 0), V(-6.349991, 38.092624, 0)),
    Part.LineSegment(V(-6.349991, 38.092624, 0), V(-3.175, 38.1, 0)),
    Part.LineSegment(V(-3.175, 38.1, 0), V(-3.175, 25.4, 0)),
    Part.LineSegment(V(-3.175, 25.4, 0), V(-6.349991, 25.392624, 0)),
    Part.LineSegment(V(3.175, 222.25, 0), V(6.349991, 222.257376, 0)),
    Part.LineSegment(V(6.349991, 222.257376, 0), V(6.349991, 209.557376, 0)),
    Part.LineSegment(V(6.349991, 209.557376, 0), V(3.175, 209.55, 0)),
    Part.LineSegment(V(3.175, 209.55, 0), V(3.175, 222.25, 0)),
    Part.LineSegment(V(-3.175, 222.25, 0), V(-3.175, 209.55, 0)),
    Part.LineSegment(V(-3.175, 209.55, 0), V(-6.349991, 209.557376, 0)),
    Part.LineSegment(V(-6.349991, 209.557376, 0), V(-6.349991, 222.257376, 0)),
    Part.LineSegment(V(-6.349991, 222.257376, 0), V(-3.175, 222.25, 0)),
], False)
sketch18.addConstraint([
    Sketcher.Constraint("Coincident", 0, 2, 1, 1),
    Sketcher.Constraint("Coincident", 1, 2, 2, 1),
    Sketcher.Constraint("Coincident", 2, 2, 3, 1),
    Sketcher.Constraint("Coincident", 3, 2, 0, 1),
    Sketcher.Constraint("Coincident", 4, 2, 5, 1),
    Sketcher.Constraint("Coincident", 5, 2, 6, 1),
    Sketcher.Constraint("Coincident", 6, 2, 7, 1),
    Sketcher.Constraint("Coincident", 7, 2, 4, 1),
    Sketcher.Constraint("Coincident", 8, 2, 9, 1),
    Sketcher.Constraint("Coincident", 9, 2, 10, 1),
    Sketcher.Constraint("Coincident", 10, 2, 11, 1),
    Sketcher.Constraint("Coincident", 11, 2, 8, 1),
    Sketcher.Constraint("Coincident", 12, 2, 13, 1),
    Sketcher.Constraint("Coincident", 13, 2, 14, 1),
    Sketcher.Constraint("Coincident", 14, 2, 15, 1),
    Sketcher.Constraint("Coincident", 15, 2, 12, 1),
    Sketcher.Constraint("Vertical", 1),
    Sketcher.Constraint("Vertical", 3),
    Sketcher.Constraint("Vertical", 4),
    Sketcher.Constraint("Vertical", 6),
    Sketcher.Constraint("Vertical", 9),
    Sketcher.Constraint("Vertical", 11),
    Sketcher.Constraint("Vertical", 12),
    Sketcher.Constraint("Vertical", 14),
    Sketcher.Constraint("Symmetric", 0, 2, 4, 2, -2),
    Sketcher.Constraint("Symmetric", 3, 2, 5, 2, -2),
    Sketcher.Constraint("Symmetric", 10, 2, 12, 2, -2),
    Sketcher.Constraint("Symmetric", 9, 2, 13, 2, -2),
    Sketcher.Constraint("Parallel", 0, 2),
    Sketcher.Constraint("Parallel", 5, 7),
    Sketcher.Constraint("Parallel", 7, 8),
    Sketcher.Constraint("Parallel", 8, 10),
    Sketcher.Constraint("Parallel", 13, 15),
    Sketcher.Constraint("Horizontal", 2, 2, 6, 2),
    Sketcher.Constraint("Horizontal", 8, 2, 14, 2),
    Sketcher.Constraint("Vertical", 1, 2, 8, 2),
    Sketcher.Constraint("Vertical", 3, 2, 10, 2),
    Sketcher.Constraint("Equal", 6, 9),
    Sketcher.Constraint("DistanceY", 1, 2, 1, 1, Q("0.5 in")),
    Sketcher.Constraint("DistanceY", -1, 1, 2, 2, Q("1 in")),
    Sketcher.Constraint("DistanceY", -1, 1, 10, 2, Q("8.25 in")),
    Sketcher.Constraint("DistanceX", 5, 2, 3, 2, Q("0.25 in")),
    Sketcher.Constraint("Distance", 0, Q("0.125 in")),
    Sketcher.Constraint("DistanceY", -1, 1, 0, 2, 38.092624),
])
sketch18.setExpression("Constraints[38]", "Params.sketch18_height")
sketch18.setExpression("Constraints[42]", "Params.sketch18_length")
pad18 = doc.addObject("PartDesign::Pad", "Pad017")
body.addObject(pad18)
pad18.Profile = sketch18
pad18.setExpression("Length", "Params.pad18_length")
pad18.Reversed = True
doc.recompute()

boolean5 = doc.addObject("PartDesign::Boolean", "Boolean004")
body.addObject(boolean5)
boolean5.Type = "Fuse"
boolean5.addObjects([body6])
doc.recompute()

boolean6 = doc.addObject("PartDesign::Boolean", "Boolean005")
body.addObject(boolean6)
boolean6.Type = "Fuse"
boolean6.addObjects([body7])
doc.recompute()

boolean7 = doc.addObject("PartDesign::Boolean", "Boolean006")
body.addObject(boolean7)
boolean7.Type = "Fuse"
boolean7.addObjects([body8])
doc.recompute()

boolean8 = doc.addObject("PartDesign::Boolean", "Boolean007")
body.addObject(boolean8)
boolean8.Type = "Fuse"
boolean8.addObjects([body9])

sketch19 = doc.addObject("Sketcher::SketchObject", "Sketch018")
body.addObject(sketch19)
sketch19.AttachmentSupport = (doc.YZ_Plane, [""])
sketch19.MapMode = "FlatFace"
sketch19.AttachmentOffset = App.Placement(V(0, 0, 51), App.Rotation())
sketch19.addGeometry([
    Part.LineSegment(V(3.175, 209.55, 0), V(3.175, 222.25, 0)),
    Part.LineSegment(V(3.175, 222.25, 0), V(6.35, 222.25, 0)),
    Part.LineSegment(V(6.35, 222.25, 0), V(6.35, 209.55, 0)),
    Part.LineSegment(V(6.35, 209.55, 0), V(3.175, 209.55, 0)),
    Part.LineSegment(V(-6.35, 209.55, 0), V(-6.35, 222.25, 0)),
    Part.LineSegment(V(-6.35, 222.25, 0), V(-3.175, 222.25, 0)),
    Part.LineSegment(V(-3.175, 222.25, 0), V(-3.175, 209.55, 0)),
    Part.LineSegment(V(-3.175, 209.55, 0), V(-6.35, 209.55, 0)),
    Part.LineSegment(V(-6.35, 25.4, 0), V(-6.35, 38.1, 0)),
    Part.LineSegment(V(-6.35, 38.1, 0), V(-3.175, 38.1, 0)),
    Part.LineSegment(V(-3.175, 38.1, 0), V(-3.175, 25.4, 0)),
    Part.LineSegment(V(-3.175, 25.4, 0), V(-6.35, 25.4, 0)),
    Part.LineSegment(V(3.175, 25.4, 0), V(3.175, 38.1, 0)),
    Part.LineSegment(V(3.175, 38.1, 0), V(6.35, 38.1, 0)),
    Part.LineSegment(V(6.35, 38.1, 0), V(6.35, 25.4, 0)),
    Part.LineSegment(V(6.35, 25.4, 0), V(3.175, 25.4, 0)),
], False)
sketch19.addConstraint([
    Sketcher.Constraint("Coincident", 0, 2, 1, 1),
    Sketcher.Constraint("Coincident", 1, 2, 2, 1),
    Sketcher.Constraint("Coincident", 2, 2, 3, 1),
    Sketcher.Constraint("Coincident", 3, 2, 0, 1),
    Sketcher.Constraint("Coincident", 4, 2, 5, 1),
    Sketcher.Constraint("Coincident", 5, 2, 6, 1),
    Sketcher.Constraint("Coincident", 6, 2, 7, 1),
    Sketcher.Constraint("Coincident", 7, 2, 4, 1),
    Sketcher.Constraint("Coincident", 8, 2, 9, 1),
    Sketcher.Constraint("Coincident", 9, 2, 10, 1),
    Sketcher.Constraint("Coincident", 10, 2, 11, 1),
    Sketcher.Constraint("Coincident", 11, 2, 8, 1),
    Sketcher.Constraint("Coincident", 12, 2, 13, 1),
    Sketcher.Constraint("Coincident", 13, 2, 14, 1),
    Sketcher.Constraint("Coincident", 14, 2, 15, 1),
    Sketcher.Constraint("Coincident", 15, 2, 12, 1),
    Sketcher.Constraint("Vertical", 0),
    Sketcher.Constraint("Horizontal", 1),
    Sketcher.Constraint("Vertical", 2),
    Sketcher.Constraint("Horizontal", 3),
    Sketcher.Constraint("Vertical", 4),
    Sketcher.Constraint("Horizontal", 5),
    Sketcher.Constraint("Vertical", 6),
    Sketcher.Constraint("Horizontal", 7),
    Sketcher.Constraint("Vertical", 8),
    Sketcher.Constraint("Horizontal", 9),
    Sketcher.Constraint("Vertical", 10),
    Sketcher.Constraint("Horizontal", 11),
    Sketcher.Constraint("Vertical", 12),
    Sketcher.Constraint("Horizontal", 13),
    Sketcher.Constraint("Vertical", 14),
    Sketcher.Constraint("Horizontal", 15),
    Sketcher.Constraint("Symmetric", 1, 2, 4, 2, -2),
    Sketcher.Constraint("Symmetric", 3, 2, 6, 2, -2),
    Sketcher.Constraint("Symmetric", 9, 2, 12, 2, -2),
    Sketcher.Constraint("Symmetric", 11, 2, 14, 2, -2),
    Sketcher.Constraint("Vertical", 7, 2, 8, 2),
    Sketcher.Constraint("Vertical", 6, 2, 9, 2),
    Sketcher.Constraint("Equal", 6, 8),
    Sketcher.Constraint("DistanceY", 0, 1, 0, 2, Q("0.5 in")),
    Sketcher.Constraint("DistanceY", -1, 1, 10, 2, Q("1 in")),
    Sketcher.Constraint("DistanceX", 4, 2, 1, 2, Q("0.5 in")),
    Sketcher.Constraint("DistanceX", 1, 1, 1, 2, Q("0.125 in")),
    Sketcher.Constraint("DistanceY", -1, 1, 0, 2, Q("8.75 in")),
])
sketch19.setExpression("Constraints[39]", "Params.sketch19_height")
sketch19.setExpression("Constraints[42]", "Params.sketch19_width")
pad19 = doc.addObject("PartDesign::Pad", "Pad018")
body.addObject(pad19)
pad19.Profile = sketch19
pad19.setExpression("Length", "Params.pad19_length")
pad19.Reversed = True
doc.recompute()

boolean9 = doc.addObject("PartDesign::Boolean", "Boolean008")
body.addObject(boolean9)
boolean9.Type = "Fuse"
boolean9.addObjects([body10])
doc.recompute()

boolean10 = doc.addObject("PartDesign::Boolean", "Boolean009")
body.addObject(boolean10)
boolean10.Type = "Fuse"
boolean10.addObjects([body11])
doc.recompute()

boolean11 = doc.addObject("PartDesign::Boolean", "Boolean010")
body.addObject(boolean11)
boolean11.Type = "Fuse"
boolean11.addObjects([body12])
doc.recompute()

boolean12 = doc.addObject("PartDesign::Boolean", "Boolean011")
body.addObject(boolean12)
boolean12.Type = "Fuse"
boolean12.addObjects([body13])

sketch20 = doc.addObject("Sketcher::SketchObject", "Sketch019")
body.addObject(sketch20)
sketch20.AttachmentSupport = (doc.XZ_Plane, [""])
sketch20.MapMode = "FlatFace"
sketch20.AttachmentOffset = App.Placement(V(0, 0, -51), App.Rotation())
sketch20.addGeometry([
    Part.LineSegment(V(3.175, 222.25, 0), V(3.175, 209.55, 0)),
    Part.LineSegment(V(3.175, 209.55, 0), V(6.35, 209.55, 0)),
    Part.LineSegment(V(6.35, 209.55, 0), V(6.35, 222.25, 0)),
    Part.LineSegment(V(6.35, 222.25, 0), V(3.175, 222.25, 0)),
    Part.LineSegment(V(-6.35, 222.25, 0), V(-6.35, 209.55, 0)),
    Part.LineSegment(V(-6.35, 209.55, 0), V(-3.175, 209.55, 0)),
    Part.LineSegment(V(-3.175, 209.55, 0), V(-3.175, 222.25, 0)),
    Part.LineSegment(V(-3.175, 222.25, 0), V(-6.35, 222.25, 0)),
    Part.LineSegment(V(-6.35, 38.1, 0), V(-6.35, 25.4, 0)),
    Part.LineSegment(V(-6.35, 25.4, 0), V(-3.175, 25.4, 0)),
    Part.LineSegment(V(-3.175, 25.4, 0), V(-3.175, 38.1, 0)),
    Part.LineSegment(V(-3.175, 38.1, 0), V(-6.35, 38.1, 0)),
    Part.LineSegment(V(3.175, 38.1, 0), V(3.175, 25.4, 0)),
    Part.LineSegment(V(3.175, 25.4, 0), V(6.35, 25.4, 0)),
    Part.LineSegment(V(6.35, 25.4, 0), V(6.35, 38.1, 0)),
    Part.LineSegment(V(6.35, 38.1, 0), V(3.175, 38.1, 0)),
], False)
sketch20.addConstraint([
    Sketcher.Constraint("Coincident", 0, 2, 1, 1),
    Sketcher.Constraint("Coincident", 1, 2, 2, 1),
    Sketcher.Constraint("Coincident", 2, 2, 3, 1),
    Sketcher.Constraint("Coincident", 3, 2, 0, 1),
    Sketcher.Constraint("Coincident", 4, 2, 5, 1),
    Sketcher.Constraint("Coincident", 5, 2, 6, 1),
    Sketcher.Constraint("Coincident", 6, 2, 7, 1),
    Sketcher.Constraint("Coincident", 7, 2, 4, 1),
    Sketcher.Constraint("Coincident", 8, 2, 9, 1),
    Sketcher.Constraint("Coincident", 9, 2, 10, 1),
    Sketcher.Constraint("Coincident", 10, 2, 11, 1),
    Sketcher.Constraint("Coincident", 11, 2, 8, 1),
    Sketcher.Constraint("Coincident", 12, 2, 13, 1),
    Sketcher.Constraint("Coincident", 13, 2, 14, 1),
    Sketcher.Constraint("Coincident", 14, 2, 15, 1),
    Sketcher.Constraint("Coincident", 15, 2, 12, 1),
    Sketcher.Constraint("Vertical", 0),
    Sketcher.Constraint("Horizontal", 1),
    Sketcher.Constraint("Vertical", 2),
    Sketcher.Constraint("Horizontal", 3),
    Sketcher.Constraint("Vertical", 4),
    Sketcher.Constraint("Horizontal", 5),
    Sketcher.Constraint("Vertical", 6),
    Sketcher.Constraint("Horizontal", 7),
    Sketcher.Constraint("Vertical", 8),
    Sketcher.Constraint("Horizontal", 9),
    Sketcher.Constraint("Vertical", 10),
    Sketcher.Constraint("Horizontal", 11),
    Sketcher.Constraint("Vertical", 12),
    Sketcher.Constraint("Horizontal", 13),
    Sketcher.Constraint("Vertical", 14),
    Sketcher.Constraint("Horizontal", 15),
    Sketcher.Constraint("Symmetric", 1, 2, 4, 2, -2),
    Sketcher.Constraint("Symmetric", 3, 2, 6, 2, -2),
    Sketcher.Constraint("Symmetric", 9, 2, 12, 2, -2),
    Sketcher.Constraint("Symmetric", 11, 2, 14, 2, -2),
    Sketcher.Constraint("Vertical", 7, 2, 8, 2),
    Sketcher.Constraint("Vertical", 6, 2, 9, 2),
    Sketcher.Constraint("Equal", 6, 8),
    Sketcher.Constraint("DistanceY", 0, 2, 0, 1, Q("0.5 in")),
    Sketcher.Constraint("DistanceY", -1, 1, 8, 2, Q("1 in")),
    Sketcher.Constraint("DistanceX", 4, 2, 1, 2, Q("0.5 in")),
    Sketcher.Constraint("DistanceX", 1, 1, 1, 2, Q("0.125 in")),
    Sketcher.Constraint("DistanceY", -1, 1, 0, 2, Q("8.25 in")),
])
sketch20.setExpression("Constraints[39]", "Params.sketch20_height")
sketch20.setExpression("Constraints[42]", "Params.sketch20_width")
pad20 = doc.addObject("PartDesign::Pad", "Pad019")
body.addObject(pad20)
pad20.Profile = sketch20
pad20.setExpression("Length", "Params.pad20_length")
doc.recompute()

boolean13 = doc.addObject("PartDesign::Boolean", "Boolean012")
body.addObject(boolean13)
boolean13.Type = "Fuse"
boolean13.addObjects([body14])
doc.recompute()

boolean14 = doc.addObject("PartDesign::Boolean", "Boolean013")
body.addObject(boolean14)
boolean14.Type = "Fuse"
boolean14.addObjects([body15])
doc.recompute()

boolean15 = doc.addObject("PartDesign::Boolean", "Boolean014")
body.addObject(boolean15)
boolean15.Type = "Fuse"
boolean15.addObjects([body16])
doc.recompute()

boolean16 = doc.addObject("PartDesign::Boolean", "Boolean015")
body.addObject(boolean16)
boolean16.Type = "Fuse"
boolean16.addObjects([body17])

sketch21 = doc.addObject("Sketcher::SketchObject", "Sketch020")
body.addObject(sketch21)
sketch21.AttachmentSupport = (doc.YZ_Plane, [""])
sketch21.MapMode = "FlatFace"
sketch21.AttachmentOffset = App.Placement(V(0, 0, -51), App.Rotation())
sketch21.addGeometry([
    Part.LineSegment(V(-6.35, 222.25, 0), V(-6.35, 209.55, 0)),
    Part.LineSegment(V(-6.35, 209.55, 0), V(-3.175, 209.55, 0)),
    Part.LineSegment(V(-3.175, 209.55, 0), V(-3.175, 222.25, 0)),
    Part.LineSegment(V(-3.175, 222.25, 0), V(-6.35, 222.25, 0)),
    Part.LineSegment(V(3.175, 222.25, 0), V(3.175, 209.55, 0)),
    Part.LineSegment(V(3.175, 209.55, 0), V(6.35, 209.55, 0)),
    Part.LineSegment(V(6.35, 209.55, 0), V(6.35, 222.25, 0)),
    Part.LineSegment(V(6.35, 222.25, 0), V(3.175, 222.25, 0)),
    Part.LineSegment(V(-6.35, 38.1, 0), V(-6.35, 25.4, 0)),
    Part.LineSegment(V(-6.35, 25.4, 0), V(-3.175, 25.4, 0)),
    Part.LineSegment(V(-3.175, 25.4, 0), V(-3.175, 38.1, 0)),
    Part.LineSegment(V(-3.175, 38.1, 0), V(-6.35, 38.1, 0)),
    Part.LineSegment(V(3.175, 38.1, 0), V(3.175, 25.4, 0)),
    Part.LineSegment(V(3.175, 25.4, 0), V(6.35, 25.4, 0)),
    Part.LineSegment(V(6.35, 25.4, 0), V(6.35, 38.1, 0)),
    Part.LineSegment(V(6.35, 38.1, 0), V(3.175, 38.1, 0)),
], False)
sketch21.addConstraint([
    Sketcher.Constraint("Coincident", 0, 2, 1, 1),
    Sketcher.Constraint("Coincident", 1, 2, 2, 1),
    Sketcher.Constraint("Coincident", 2, 2, 3, 1),
    Sketcher.Constraint("Coincident", 3, 2, 0, 1),
    Sketcher.Constraint("Coincident", 4, 2, 5, 1),
    Sketcher.Constraint("Coincident", 5, 2, 6, 1),
    Sketcher.Constraint("Coincident", 6, 2, 7, 1),
    Sketcher.Constraint("Coincident", 7, 2, 4, 1),
    Sketcher.Constraint("Coincident", 8, 2, 9, 1),
    Sketcher.Constraint("Coincident", 9, 2, 10, 1),
    Sketcher.Constraint("Coincident", 10, 2, 11, 1),
    Sketcher.Constraint("Coincident", 11, 2, 8, 1),
    Sketcher.Constraint("Coincident", 12, 2, 13, 1),
    Sketcher.Constraint("Coincident", 13, 2, 14, 1),
    Sketcher.Constraint("Coincident", 14, 2, 15, 1),
    Sketcher.Constraint("Coincident", 15, 2, 12, 1),
    Sketcher.Constraint("Vertical", 0),
    Sketcher.Constraint("Horizontal", 1),
    Sketcher.Constraint("Vertical", 2),
    Sketcher.Constraint("Horizontal", 3),
    Sketcher.Constraint("Vertical", 4),
    Sketcher.Constraint("Horizontal", 5),
    Sketcher.Constraint("Vertical", 6),
    Sketcher.Constraint("Horizontal", 7),
    Sketcher.Constraint("Vertical", 8),
    Sketcher.Constraint("Horizontal", 9),
    Sketcher.Constraint("Vertical", 10),
    Sketcher.Constraint("Horizontal", 11),
    Sketcher.Constraint("Vertical", 12),
    Sketcher.Constraint("Horizontal", 13),
    Sketcher.Constraint("Vertical", 14),
    Sketcher.Constraint("Horizontal", 15),
    Sketcher.Constraint("Symmetric", 1, 2, 4, 2, -2),
    Sketcher.Constraint("Symmetric", 3, 2, 6, 2, -2),
    Sketcher.Constraint("Symmetric", 9, 2, 12, 2, -2),
    Sketcher.Constraint("Symmetric", 11, 2, 14, 2, -2),
    Sketcher.Constraint("Vertical", 3, 2, 8, 2),
    Sketcher.Constraint("Vertical", 2, 2, 9, 2),
    Sketcher.Constraint("Equal", 6, 8),
    Sketcher.Constraint("DistanceY", 0, 2, 0, 1, Q("0.5 in")),
    Sketcher.Constraint("DistanceY", -1, 1, 8, 2, Q("1 in")),
    Sketcher.Constraint("DistanceX", 0, 2, 5, 2, Q("0.5 in")),
    Sketcher.Constraint("DistanceX", 1, 1, 1, 2, Q("0.125 in")),
    Sketcher.Constraint("DistanceY", -1, 1, 0, 2, Q("8.25 in")),
])
sketch21.setExpression("Constraints[39]", "Params.sketch21_height")
sketch21.setExpression("Constraints[42]", "Params.sketch21_width")
pad21 = doc.addObject("PartDesign::Pad", "Pad020")
body.addObject(pad21)
pad21.Profile = sketch21
pad21.setExpression("Length", "Params.pad21_length")

doc.recompute()
